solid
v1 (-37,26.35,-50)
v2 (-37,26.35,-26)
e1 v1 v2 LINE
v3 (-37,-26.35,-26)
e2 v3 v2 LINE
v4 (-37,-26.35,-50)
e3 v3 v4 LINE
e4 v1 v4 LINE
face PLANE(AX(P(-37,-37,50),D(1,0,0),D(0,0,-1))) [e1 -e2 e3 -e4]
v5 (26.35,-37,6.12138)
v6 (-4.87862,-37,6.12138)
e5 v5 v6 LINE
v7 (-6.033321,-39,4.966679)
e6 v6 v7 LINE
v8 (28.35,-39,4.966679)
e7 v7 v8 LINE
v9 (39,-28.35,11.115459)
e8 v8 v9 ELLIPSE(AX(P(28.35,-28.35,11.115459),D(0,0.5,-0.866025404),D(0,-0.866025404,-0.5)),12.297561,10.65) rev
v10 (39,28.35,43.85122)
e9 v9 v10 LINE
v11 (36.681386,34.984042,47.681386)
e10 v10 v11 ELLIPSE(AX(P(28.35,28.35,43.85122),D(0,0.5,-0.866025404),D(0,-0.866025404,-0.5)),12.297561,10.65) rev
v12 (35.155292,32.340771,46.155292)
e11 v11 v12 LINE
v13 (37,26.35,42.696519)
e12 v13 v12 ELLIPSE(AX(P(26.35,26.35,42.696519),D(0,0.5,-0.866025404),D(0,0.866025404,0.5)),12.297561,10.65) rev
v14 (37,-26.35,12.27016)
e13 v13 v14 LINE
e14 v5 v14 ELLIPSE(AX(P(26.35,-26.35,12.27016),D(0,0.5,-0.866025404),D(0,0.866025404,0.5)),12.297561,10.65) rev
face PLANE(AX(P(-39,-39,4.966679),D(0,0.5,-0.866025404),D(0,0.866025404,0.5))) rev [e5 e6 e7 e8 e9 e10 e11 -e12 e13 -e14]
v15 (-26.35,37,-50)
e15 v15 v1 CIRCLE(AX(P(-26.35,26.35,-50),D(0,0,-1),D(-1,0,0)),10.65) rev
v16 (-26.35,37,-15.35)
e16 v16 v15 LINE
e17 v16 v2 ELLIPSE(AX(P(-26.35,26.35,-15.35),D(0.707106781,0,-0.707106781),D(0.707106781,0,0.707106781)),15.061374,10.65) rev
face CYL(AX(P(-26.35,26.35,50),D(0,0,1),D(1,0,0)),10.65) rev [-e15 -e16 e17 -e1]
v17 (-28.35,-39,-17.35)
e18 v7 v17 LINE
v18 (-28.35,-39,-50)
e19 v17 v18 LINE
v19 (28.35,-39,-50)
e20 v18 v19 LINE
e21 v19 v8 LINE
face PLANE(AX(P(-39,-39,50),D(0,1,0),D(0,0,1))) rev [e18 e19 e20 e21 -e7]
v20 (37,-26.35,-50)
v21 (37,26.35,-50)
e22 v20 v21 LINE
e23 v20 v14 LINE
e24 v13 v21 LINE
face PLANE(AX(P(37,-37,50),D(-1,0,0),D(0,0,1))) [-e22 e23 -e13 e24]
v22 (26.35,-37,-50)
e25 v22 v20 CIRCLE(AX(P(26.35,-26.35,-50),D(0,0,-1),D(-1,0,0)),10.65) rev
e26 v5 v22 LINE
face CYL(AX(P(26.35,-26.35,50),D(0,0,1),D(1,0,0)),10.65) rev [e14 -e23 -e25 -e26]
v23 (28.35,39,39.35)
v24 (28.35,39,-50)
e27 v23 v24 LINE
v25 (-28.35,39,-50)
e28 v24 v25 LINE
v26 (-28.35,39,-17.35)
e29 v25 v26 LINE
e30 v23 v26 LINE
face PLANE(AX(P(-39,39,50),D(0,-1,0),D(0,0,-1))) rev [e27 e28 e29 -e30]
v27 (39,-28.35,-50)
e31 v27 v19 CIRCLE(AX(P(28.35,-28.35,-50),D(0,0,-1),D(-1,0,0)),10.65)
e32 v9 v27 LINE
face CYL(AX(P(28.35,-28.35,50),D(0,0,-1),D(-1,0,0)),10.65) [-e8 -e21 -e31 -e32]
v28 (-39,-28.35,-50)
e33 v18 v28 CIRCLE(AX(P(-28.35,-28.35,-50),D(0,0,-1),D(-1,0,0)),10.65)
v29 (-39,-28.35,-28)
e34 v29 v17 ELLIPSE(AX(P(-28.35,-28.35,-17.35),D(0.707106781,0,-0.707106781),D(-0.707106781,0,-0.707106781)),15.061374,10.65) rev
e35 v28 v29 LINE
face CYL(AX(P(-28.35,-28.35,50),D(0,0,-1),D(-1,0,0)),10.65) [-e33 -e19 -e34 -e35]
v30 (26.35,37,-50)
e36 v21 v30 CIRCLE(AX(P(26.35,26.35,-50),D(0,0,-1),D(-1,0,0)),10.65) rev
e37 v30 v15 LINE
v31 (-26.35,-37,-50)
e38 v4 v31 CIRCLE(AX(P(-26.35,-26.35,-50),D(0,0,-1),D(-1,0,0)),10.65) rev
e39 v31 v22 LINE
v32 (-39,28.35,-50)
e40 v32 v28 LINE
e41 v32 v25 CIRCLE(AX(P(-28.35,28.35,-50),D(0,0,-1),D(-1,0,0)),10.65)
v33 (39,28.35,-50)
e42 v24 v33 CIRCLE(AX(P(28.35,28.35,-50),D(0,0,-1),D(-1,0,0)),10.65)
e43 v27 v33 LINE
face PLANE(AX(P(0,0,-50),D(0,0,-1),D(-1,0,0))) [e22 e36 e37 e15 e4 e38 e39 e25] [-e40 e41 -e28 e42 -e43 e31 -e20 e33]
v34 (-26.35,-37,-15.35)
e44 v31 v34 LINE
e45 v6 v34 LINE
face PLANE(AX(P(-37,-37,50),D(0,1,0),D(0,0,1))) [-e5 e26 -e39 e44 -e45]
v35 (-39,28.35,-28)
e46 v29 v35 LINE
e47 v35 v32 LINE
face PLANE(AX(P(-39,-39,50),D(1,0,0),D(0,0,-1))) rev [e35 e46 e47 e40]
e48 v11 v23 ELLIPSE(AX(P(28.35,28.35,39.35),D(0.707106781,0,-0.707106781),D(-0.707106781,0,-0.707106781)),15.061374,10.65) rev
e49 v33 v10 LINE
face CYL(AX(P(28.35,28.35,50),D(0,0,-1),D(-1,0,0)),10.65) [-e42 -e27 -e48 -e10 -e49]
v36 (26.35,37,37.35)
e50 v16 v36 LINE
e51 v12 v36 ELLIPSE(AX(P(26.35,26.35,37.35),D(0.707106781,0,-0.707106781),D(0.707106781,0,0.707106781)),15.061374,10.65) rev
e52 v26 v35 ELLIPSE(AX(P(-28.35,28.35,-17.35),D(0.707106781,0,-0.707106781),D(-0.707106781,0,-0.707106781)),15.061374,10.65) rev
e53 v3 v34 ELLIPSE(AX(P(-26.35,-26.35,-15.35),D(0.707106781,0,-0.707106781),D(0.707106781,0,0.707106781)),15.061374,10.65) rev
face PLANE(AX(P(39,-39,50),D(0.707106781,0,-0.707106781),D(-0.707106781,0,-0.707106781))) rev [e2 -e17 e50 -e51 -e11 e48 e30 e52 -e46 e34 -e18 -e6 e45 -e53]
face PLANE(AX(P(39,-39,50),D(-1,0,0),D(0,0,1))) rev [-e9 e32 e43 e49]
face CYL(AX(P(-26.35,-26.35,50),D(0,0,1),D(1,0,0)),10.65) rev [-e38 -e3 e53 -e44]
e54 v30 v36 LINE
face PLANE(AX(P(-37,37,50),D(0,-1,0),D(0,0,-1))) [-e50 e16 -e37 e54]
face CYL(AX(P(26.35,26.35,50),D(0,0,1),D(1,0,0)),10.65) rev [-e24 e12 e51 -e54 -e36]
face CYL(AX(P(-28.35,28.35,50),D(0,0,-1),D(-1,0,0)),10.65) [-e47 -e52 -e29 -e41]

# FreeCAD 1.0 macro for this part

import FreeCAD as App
import Part
import Sketcher
Q = App.Units.Quantity


def edges_at(feature, points):
    """Names of the edges that pass closest to the given points."""
    edges = feature.Shape.Edges
    near = lambda p: min(range(len(edges)), key=lambda i: edges[i].distToShape(Part.Vertex(*p))[0])
    return sorted({f"Edge{near(p) + 1}" for p in points})


def add_polygon(sketch, points):
    """Adds a closed chain of lines whose ends are joined by coincident constraints."""
    first, n = sketch.GeometryCount, len(points)
    for a, b in zip(points, points[1:] + points[:1]):
        sketch.addGeometry(Part.LineSegment(App.Vector(*a, 0), App.Vector(*b, 0)), False)
    for i in range(n):
        sketch.addConstraint(Sketcher.Constraint("Coincident", first + i, 2, first + (i + 1) % n, 1))

doc = App.newDocument("Part")
body = doc.addObject("PartDesign::Body", "Body")

sketch1 = doc.addObject("Sketcher::SketchObject", "Sketch")
body.addObject(sketch1)
sketch1.AttachmentSupport = (doc.XY_Plane, [""])
sketch1.MapMode = "FlatFace"
add_polygon(sketch1, [(-39, 39), (-39, -39), (39, -39), (39, 39)])
add_polygon(sketch1, [(37, -37), (-37, -37), (-37, 37), (37, 37)])
sketch1.addConstraint([
    Sketcher.Constraint("Vertical", 0),
    Sketcher.Constraint("Horizontal", 1),
    Sketcher.Constraint("Vertical", 2),
    Sketcher.Constraint("Horizontal", 3),
    Sketcher.Constraint("Horizontal", 4),
    Sketcher.Constraint("Vertical", 5),
    Sketcher.Constraint("Horizontal", 6),
    Sketcher.Constraint("Vertical", 7),
    Sketcher.Constraint("Symmetric", 0, 2, 2, 2, -1, 1),
    Sketcher.Constraint("Symmetric", 4, 2, 6, 2, -1, 1),
    Sketcher.Constraint("Equal", 3, 0),
    Sketcher.Constraint("Equal", 6, 5),
    Sketcher.Constraint("DistanceX", 1, 1, 1, 2, Q("78 mm")),
    Sketcher.Constraint("DistanceX", 4, 2, 4, 1, Q("74 mm")),
])
pad1 = doc.addObject("PartDesign::Pad", "Pad")
body.addObject(pad1)
pad1.Profile = sketch1
pad1.Length = 100
pad1.Midplane = True
doc.recompute()

fillet = doc.addObject("PartDesign::Fillet", "Fillet")
body.addObject(fillet)
fillet.Base = (pad1, edges_at(pad1, [
    (37, -37, 0),
    (37, 37, 0),
    (-37, 37, 0),
    (-37, -37, 0),
    (39, -39, 0),
    (-39, -39, 0),
    (-39, 39, 0),
    (39, 39, 0),
]))
fillet.Radius = 10.65

sketch2 = doc.addObject("Sketcher::SketchObject", "Sketch001")
body.addObject(sketch2)
sketch2.AttachmentSupport = (doc.YZ_Plane, [""])
sketch2.MapMode = "FlatFace"
sketch2.AttachmentOffset = App.Placement(App.Vector(0, 0, 39), App.Rotation())
add_polygon(sketch2, [(39, 50), (-39, 50), (-39, 4.966679)])
sketch2.addConstraint([
    Sketcher.Constraint("Horizontal", 0),
    Sketcher.Constraint("Vertical", 1),
    Sketcher.Constraint("DistanceX", 0, 2, 0, 1, Q("78 mm")),
    Sketcher.Constraint("Angle", 2, Q("30 deg")),
    Sketcher.Constraint("DistanceX", 0, 2, -1, 1, Q("39 mm")),
    Sketcher.Constraint("DistanceY", -1, 1, 0, 2, Q("50 mm")),
])
pocket1 = doc.addObject("PartDesign::Pocket", "Pocket")
body.addObject(pocket1)
pocket1.Profile = sketch2
pocket1.Type = "ThroughAll"

sketch3 = doc.addObject("Sketcher::SketchObject", "Sketch002")
body.addObject(sketch3)
sketch3.AttachmentSupport = (doc.XZ_Plane, [""])
sketch3.MapMode = "FlatFace"
sketch3.AttachmentOffset = App.Placement(App.Vector(0, 0, -39), App.Rotation())
add_polygon(sketch3, [(-39, 50), (39, 50), (-39, -28)])
sketch3.addConstraint([
    Sketcher.Constraint("Horizontal", 0),
    Sketcher.Constraint("Vertical", 2),
    Sketcher.Constraint("Equal", 0, 2),
    Sketcher.Constraint("DistanceX", 0, 1, 0, 2, Q("78 mm")),
    Sketcher.Constraint("DistanceX", -1, 1, 0, 2, Q("39 mm")),
    Sketcher.Constraint("DistanceY", -1, 1, 0, 2, Q("50 mm")),
])
pocket2 = doc.addObject("PartDesign::Pocket", "Pocket001")
body.addObject(pocket2)
pocket2.Profile = sketch3
pocket2.Type = "ThroughAll"
pocket2.Reversed = True

doc.recompute()
